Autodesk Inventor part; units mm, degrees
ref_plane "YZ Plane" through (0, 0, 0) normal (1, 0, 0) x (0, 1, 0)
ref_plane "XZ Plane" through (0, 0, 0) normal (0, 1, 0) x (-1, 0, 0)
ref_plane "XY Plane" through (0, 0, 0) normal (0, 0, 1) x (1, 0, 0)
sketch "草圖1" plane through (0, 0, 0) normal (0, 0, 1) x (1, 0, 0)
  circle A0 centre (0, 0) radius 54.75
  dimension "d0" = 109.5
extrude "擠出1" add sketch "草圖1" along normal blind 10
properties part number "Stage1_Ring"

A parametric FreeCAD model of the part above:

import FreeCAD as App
import Part
import Sketcher

V = App.Vector

doc = App.newDocument("Part")
params = doc.addObject("Spreadsheet::Sheet", "Params")
for row, (alias, value) in enumerate([
    ("sketch1_diameter", "109.5 mm"),
    ("pad1_length", "10 mm"),
], start=1):
    params.set(f"A{row}", alias)
    params.set(f"B{row}", "=" + value)
    params.setAlias(f"B{row}", alias)

body = doc.addObject("PartDesign::Body", "Body")

sketch1 = doc.addObject("Sketcher::SketchObject", "Sketch")
body.addObject(sketch1)
sketch1.AttachmentSupport = (doc.XY_Plane, [""])
sketch1.MapMode = "FlatFace"
sketch1.addGeometry(Part.Circle(V(0, 0, 0), V(0, 0, 1), 54.75), False)
sketch1.addConstraint([
    Sketcher.Constraint("Coincident", 0, 3, -1, 1),
    Sketcher.Constraint("Diameter", 0, 109.5),
])
sketch1.setExpression("Constraints[1]", "Params.sketch1_diameter")
pad1 = doc.addObject("PartDesign::Pad", "Pad")
body.addObject(pad1)
pad1.Profile = sketch1
pad1.setExpression("Length", "Params.pad1_length")

doc.recompute()
